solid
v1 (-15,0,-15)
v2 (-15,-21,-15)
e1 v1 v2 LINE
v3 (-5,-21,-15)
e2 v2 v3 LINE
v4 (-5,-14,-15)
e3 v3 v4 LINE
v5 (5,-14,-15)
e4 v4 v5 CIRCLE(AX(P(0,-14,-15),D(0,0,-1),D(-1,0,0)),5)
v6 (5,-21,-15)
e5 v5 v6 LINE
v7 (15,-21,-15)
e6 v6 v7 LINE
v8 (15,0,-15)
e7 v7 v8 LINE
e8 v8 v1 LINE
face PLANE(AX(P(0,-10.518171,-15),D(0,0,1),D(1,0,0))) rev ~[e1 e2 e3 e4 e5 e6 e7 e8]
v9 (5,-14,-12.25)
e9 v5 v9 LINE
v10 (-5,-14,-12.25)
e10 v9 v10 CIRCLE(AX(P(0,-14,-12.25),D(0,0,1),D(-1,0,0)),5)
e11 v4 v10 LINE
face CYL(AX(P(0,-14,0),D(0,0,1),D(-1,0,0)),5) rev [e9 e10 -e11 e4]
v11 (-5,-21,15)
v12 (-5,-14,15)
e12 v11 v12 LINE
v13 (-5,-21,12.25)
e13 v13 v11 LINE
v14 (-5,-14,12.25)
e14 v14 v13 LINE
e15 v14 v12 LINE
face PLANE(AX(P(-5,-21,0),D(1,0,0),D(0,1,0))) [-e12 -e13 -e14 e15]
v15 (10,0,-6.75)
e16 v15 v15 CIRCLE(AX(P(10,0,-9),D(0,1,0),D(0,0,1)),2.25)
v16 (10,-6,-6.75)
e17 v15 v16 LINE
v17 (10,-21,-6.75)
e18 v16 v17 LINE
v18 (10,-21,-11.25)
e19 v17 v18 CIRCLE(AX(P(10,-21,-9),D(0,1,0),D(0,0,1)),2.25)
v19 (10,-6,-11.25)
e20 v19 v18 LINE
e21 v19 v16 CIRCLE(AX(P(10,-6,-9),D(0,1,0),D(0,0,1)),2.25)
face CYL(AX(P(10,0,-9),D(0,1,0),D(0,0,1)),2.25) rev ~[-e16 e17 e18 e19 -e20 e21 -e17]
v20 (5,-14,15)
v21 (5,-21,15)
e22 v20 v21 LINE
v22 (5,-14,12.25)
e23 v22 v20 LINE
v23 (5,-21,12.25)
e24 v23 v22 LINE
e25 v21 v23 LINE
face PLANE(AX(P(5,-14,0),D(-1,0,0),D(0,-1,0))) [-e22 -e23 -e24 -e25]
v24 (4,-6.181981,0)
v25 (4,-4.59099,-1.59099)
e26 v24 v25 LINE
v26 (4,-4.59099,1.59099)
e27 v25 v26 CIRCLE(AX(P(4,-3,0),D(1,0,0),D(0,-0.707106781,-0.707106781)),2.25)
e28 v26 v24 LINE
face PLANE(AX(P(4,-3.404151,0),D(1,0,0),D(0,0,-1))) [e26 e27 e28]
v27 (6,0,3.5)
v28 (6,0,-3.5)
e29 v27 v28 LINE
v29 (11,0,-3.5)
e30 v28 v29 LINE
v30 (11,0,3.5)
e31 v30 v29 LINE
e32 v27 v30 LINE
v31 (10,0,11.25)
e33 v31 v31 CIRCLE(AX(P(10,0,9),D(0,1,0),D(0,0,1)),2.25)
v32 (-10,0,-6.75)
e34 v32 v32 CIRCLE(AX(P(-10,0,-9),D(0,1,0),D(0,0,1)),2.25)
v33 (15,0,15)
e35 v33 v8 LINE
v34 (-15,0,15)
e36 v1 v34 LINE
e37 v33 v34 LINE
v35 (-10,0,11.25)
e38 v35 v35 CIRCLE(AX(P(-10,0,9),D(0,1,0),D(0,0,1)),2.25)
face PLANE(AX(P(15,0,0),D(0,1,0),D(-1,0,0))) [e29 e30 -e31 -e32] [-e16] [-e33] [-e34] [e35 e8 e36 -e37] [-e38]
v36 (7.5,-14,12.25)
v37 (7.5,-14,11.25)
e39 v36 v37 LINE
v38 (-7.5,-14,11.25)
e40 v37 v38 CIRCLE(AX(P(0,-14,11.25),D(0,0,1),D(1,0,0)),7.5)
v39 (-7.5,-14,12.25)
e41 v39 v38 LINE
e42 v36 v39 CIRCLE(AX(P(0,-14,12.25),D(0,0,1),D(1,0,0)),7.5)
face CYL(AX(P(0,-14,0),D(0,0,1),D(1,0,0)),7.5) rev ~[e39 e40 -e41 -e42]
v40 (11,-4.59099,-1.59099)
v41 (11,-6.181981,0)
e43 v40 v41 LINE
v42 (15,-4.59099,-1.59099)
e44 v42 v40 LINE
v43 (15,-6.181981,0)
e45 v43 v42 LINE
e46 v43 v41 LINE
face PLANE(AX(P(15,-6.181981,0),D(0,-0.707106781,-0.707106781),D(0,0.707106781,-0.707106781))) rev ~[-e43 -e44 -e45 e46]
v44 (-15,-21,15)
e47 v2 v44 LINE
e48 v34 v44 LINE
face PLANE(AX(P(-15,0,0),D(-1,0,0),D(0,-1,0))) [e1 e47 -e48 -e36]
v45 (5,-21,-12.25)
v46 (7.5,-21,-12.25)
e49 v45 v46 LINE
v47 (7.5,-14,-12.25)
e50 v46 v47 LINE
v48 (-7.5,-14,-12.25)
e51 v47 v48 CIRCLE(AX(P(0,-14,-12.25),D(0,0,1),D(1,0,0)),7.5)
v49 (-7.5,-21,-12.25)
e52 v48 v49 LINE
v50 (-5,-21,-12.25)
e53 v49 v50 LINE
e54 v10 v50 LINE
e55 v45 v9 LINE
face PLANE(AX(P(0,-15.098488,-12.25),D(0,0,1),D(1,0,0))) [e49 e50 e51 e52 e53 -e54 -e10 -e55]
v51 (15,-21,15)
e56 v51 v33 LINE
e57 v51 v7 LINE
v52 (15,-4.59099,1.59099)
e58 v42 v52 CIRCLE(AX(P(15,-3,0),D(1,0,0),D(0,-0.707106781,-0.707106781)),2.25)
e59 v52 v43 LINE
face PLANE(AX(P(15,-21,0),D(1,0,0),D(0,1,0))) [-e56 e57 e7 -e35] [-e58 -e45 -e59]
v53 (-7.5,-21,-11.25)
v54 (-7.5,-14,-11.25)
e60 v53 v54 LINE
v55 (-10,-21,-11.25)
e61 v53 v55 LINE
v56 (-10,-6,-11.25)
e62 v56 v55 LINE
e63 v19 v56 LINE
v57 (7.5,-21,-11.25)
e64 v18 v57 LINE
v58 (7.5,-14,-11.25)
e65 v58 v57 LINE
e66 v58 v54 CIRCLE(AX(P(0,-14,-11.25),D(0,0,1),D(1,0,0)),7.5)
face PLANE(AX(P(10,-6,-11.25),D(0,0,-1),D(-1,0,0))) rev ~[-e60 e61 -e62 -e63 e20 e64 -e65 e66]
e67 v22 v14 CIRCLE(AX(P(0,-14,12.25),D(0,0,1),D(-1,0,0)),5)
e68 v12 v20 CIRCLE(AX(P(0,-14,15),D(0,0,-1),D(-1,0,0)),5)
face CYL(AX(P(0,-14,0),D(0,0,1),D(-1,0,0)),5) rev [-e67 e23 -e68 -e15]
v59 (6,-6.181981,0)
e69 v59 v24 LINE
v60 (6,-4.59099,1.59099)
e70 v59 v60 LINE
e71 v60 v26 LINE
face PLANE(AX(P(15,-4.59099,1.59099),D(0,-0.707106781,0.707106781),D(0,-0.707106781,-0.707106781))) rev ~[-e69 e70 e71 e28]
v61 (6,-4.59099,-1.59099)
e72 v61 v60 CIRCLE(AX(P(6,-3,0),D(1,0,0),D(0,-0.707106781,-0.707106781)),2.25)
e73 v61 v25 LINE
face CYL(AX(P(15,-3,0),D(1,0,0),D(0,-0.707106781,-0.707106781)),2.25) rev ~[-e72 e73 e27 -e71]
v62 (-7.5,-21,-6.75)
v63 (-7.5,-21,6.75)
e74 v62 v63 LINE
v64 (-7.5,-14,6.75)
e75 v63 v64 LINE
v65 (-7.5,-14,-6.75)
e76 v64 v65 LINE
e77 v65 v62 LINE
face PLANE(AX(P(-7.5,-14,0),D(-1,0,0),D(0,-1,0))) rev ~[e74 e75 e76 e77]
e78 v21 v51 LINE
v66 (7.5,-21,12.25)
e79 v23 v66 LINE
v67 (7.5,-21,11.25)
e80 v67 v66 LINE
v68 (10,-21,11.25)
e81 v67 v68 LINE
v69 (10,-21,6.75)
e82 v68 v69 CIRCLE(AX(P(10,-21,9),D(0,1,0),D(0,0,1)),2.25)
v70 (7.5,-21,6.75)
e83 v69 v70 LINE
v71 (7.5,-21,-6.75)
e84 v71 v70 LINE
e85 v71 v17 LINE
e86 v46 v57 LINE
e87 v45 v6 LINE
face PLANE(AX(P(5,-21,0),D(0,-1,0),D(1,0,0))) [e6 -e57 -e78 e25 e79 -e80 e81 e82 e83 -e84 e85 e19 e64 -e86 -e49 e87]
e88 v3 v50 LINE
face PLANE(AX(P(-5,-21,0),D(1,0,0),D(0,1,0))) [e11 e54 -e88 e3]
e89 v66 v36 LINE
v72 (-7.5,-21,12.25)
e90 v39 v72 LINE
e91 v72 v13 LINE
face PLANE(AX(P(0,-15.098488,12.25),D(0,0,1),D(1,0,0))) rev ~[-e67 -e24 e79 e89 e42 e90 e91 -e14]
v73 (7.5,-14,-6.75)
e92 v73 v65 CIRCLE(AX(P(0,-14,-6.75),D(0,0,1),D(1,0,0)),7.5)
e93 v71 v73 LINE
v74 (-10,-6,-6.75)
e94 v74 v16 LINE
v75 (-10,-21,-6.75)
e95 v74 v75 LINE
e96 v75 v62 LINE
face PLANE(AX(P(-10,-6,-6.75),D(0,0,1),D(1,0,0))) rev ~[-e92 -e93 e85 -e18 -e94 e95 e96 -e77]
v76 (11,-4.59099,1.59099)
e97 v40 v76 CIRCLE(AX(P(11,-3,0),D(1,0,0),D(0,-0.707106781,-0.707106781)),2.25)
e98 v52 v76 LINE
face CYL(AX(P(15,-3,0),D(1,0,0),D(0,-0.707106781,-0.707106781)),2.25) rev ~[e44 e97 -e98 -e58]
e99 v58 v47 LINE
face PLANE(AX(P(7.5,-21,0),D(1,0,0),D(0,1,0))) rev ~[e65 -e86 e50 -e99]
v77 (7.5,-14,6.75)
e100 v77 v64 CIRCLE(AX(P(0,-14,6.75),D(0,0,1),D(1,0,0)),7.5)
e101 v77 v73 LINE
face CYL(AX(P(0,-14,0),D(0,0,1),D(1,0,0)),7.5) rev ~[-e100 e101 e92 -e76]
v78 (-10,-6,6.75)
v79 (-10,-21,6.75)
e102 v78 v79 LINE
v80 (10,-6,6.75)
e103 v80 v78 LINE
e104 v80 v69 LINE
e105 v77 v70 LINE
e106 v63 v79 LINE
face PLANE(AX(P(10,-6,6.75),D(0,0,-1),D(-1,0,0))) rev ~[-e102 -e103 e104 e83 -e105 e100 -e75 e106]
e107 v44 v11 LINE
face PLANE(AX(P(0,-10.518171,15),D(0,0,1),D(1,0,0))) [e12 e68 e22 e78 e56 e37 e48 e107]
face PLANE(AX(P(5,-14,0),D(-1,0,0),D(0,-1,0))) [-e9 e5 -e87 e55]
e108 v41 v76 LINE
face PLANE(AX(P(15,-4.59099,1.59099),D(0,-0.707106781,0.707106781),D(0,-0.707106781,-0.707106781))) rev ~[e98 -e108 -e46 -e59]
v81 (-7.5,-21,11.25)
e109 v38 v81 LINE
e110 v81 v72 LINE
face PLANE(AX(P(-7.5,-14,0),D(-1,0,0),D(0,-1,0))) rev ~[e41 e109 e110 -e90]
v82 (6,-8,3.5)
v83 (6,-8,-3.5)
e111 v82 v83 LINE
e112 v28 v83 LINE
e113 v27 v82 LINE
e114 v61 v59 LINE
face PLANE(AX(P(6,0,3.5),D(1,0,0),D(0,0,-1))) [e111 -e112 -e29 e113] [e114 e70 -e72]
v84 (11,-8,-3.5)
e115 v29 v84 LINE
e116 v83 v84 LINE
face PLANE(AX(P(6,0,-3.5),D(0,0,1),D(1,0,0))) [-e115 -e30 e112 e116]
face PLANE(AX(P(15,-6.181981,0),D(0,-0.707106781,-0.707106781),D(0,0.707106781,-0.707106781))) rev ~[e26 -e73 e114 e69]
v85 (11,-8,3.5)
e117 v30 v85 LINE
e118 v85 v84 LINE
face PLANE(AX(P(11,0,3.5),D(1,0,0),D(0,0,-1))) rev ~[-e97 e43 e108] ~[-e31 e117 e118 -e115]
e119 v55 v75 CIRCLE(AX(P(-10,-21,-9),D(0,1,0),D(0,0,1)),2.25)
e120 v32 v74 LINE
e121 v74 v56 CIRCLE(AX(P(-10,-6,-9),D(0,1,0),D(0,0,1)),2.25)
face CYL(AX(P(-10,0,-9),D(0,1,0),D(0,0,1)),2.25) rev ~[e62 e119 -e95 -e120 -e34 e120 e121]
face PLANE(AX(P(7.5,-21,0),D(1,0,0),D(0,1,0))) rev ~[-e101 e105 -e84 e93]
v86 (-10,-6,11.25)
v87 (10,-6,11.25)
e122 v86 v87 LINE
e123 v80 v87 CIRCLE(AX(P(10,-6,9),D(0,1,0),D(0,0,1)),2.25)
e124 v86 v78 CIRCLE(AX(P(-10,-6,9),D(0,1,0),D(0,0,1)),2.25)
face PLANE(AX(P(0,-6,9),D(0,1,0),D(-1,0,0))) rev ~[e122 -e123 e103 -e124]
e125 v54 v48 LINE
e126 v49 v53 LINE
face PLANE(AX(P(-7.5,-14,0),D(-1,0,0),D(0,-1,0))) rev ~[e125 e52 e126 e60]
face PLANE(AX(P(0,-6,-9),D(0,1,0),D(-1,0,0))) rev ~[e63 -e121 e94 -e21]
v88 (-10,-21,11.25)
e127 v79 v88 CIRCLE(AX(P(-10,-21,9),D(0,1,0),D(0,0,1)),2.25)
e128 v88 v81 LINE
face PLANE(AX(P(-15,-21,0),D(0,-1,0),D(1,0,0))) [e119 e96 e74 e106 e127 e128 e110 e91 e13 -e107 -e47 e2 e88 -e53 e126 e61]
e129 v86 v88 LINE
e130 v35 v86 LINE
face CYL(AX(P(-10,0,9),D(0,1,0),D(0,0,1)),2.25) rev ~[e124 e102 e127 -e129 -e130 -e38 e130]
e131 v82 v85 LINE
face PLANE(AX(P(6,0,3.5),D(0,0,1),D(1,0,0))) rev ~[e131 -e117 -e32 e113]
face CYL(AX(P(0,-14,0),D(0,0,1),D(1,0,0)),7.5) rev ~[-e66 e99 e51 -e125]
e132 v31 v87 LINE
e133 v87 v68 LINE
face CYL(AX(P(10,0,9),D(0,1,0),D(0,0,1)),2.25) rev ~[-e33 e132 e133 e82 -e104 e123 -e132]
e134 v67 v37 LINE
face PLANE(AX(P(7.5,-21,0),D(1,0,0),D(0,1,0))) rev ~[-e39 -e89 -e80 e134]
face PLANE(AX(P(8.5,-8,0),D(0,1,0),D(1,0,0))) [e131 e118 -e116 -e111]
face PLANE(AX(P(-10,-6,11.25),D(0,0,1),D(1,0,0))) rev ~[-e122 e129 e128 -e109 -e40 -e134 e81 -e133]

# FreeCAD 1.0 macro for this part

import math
import FreeCAD as App
import Part
import Sketcher

V = App.Vector
Q = App.Units.Quantity


def add_polygon(sketch, points):
    """Adds a closed chain of lines whose ends are joined by coincident constraints."""
    first, n = sketch.GeometryCount, len(points)
    for a, b in zip(points, points[1:] + points[:1]):
        sketch.addGeometry(Part.LineSegment(App.Vector(*a, 0), App.Vector(*b, 0)), False)
    for i in range(n):
        sketch.addConstraint(Sketcher.Constraint("Coincident", first + i, 2, first + (i + 1) % n, 1))

doc = App.newDocument("Part")
body = doc.addObject("PartDesign::Body", "Body")

sketch1 = doc.addObject("Sketcher::SketchObject", "Sketch")
body.addObject(sketch1)
sketch1.AttachmentSupport = (doc.XY_Plane, [""])
sketch1.MapMode = "FlatFace"
sketch1.addGeometry([
    Part.LineSegment(V(15, 0, 0), V(-15, 0, 0)),
    Part.LineSegment(V(-15, 0, 0), V(-15, -21, 0)),
    Part.LineSegment(V(-15, -21, 0), V(-5, -21, 0)),
    Part.LineSegment(V(-5, -21, 0), V(-5, -14, 0)),
    Part.ArcOfCircle(Part.Circle(V(0, -14, 0), V(0, 0, 1), 5), math.radians(0), math.radians(180)),
    Part.LineSegment(V(5, -14, 0), V(5, -21, 0)),
    Part.LineSegment(V(5, -21, 0), V(15, -21, 0)),
    Part.LineSegment(V(15, -21, 0), V(15, 0, 0)),
], False)
sketch1.addConstraint([
    Sketcher.Constraint("Coincident", 0, 2, 1, 1),
    Sketcher.Constraint("Coincident", 1, 2, 2, 1),
    Sketcher.Constraint("Coincident", 2, 2, 3, 1),
    Sketcher.Constraint("Tangent", 3, 2, 4, 2),
    Sketcher.Constraint("Tangent", 4, 1, 5, 1),
    Sketcher.Constraint("Coincident", 5, 2, 6, 1),
    Sketcher.Constraint("Coincident", 6, 2, 7, 1),
    Sketcher.Constraint("Coincident", 7, 2, 0, 1),
    Sketcher.Constraint("Horizontal", 0),
    Sketcher.Constraint("Vertical", 1),
    Sketcher.Constraint("Horizontal", 2),
    Sketcher.Constraint("Vertical", 3),
    Sketcher.Constraint("Vertical", 5),
    Sketcher.Constraint("Horizontal", 6),
    Sketcher.Constraint("Vertical", 7),
    Sketcher.Constraint("Symmetric", 0, 2, 7, 2, -1, 1),
    Sketcher.Constraint("Symmetric", 2, 2, 5, 2, -2),
    Sketcher.Constraint("Radius", 4, Q("5 mm")),
    Sketcher.Constraint("DistanceX", 0, 2, 0, 1, Q("30 mm")),
    Sketcher.Constraint("DistanceY", 1, 2, 1, 1, Q("21 mm")),
    Sketcher.Constraint("DistanceY", 3, 1, 3, 2, Q("7 mm")),
])
pad1 = doc.addObject("PartDesign::Pad", "Pad")
body.addObject(pad1)
pad1.Profile = sketch1
pad1.Length = 30
pad1.Midplane = True

sketch2 = doc.addObject("Sketcher::SketchObject", "Sketch001")
body.addObject(sketch2)
sketch2.AttachmentSupport = (doc.XZ_Plane, [""])
sketch2.MapMode = "FlatFace"
sketch2.addGeometry([
    Part.Circle(V(-10, -9, 0), V(0, 0, 1), 2.2),
    Part.Circle(V(10, -9, 0), V(0, 0, 1), 2.2),
    Part.Circle(V(10, 9, 0), V(0, 0, 1), 2.2),
    Part.Circle(V(-10, 9, 0), V(0, 0, 1), 2.2),
], False)
sketch2.addConstraint([
    Sketcher.Constraint("Equal", 0, 1),
    Sketcher.Constraint("Equal", 1, 2),
    Sketcher.Constraint("Equal", 2, 3),
    Sketcher.Constraint("Symmetric", 0, 3, 2, 3, -1, 1),
    Sketcher.Constraint("Symmetric", 1, 3, 3, 3, -1, 1),
    Sketcher.Constraint("Symmetric", 0, 3, 1, 3, -2),
    Sketcher.Constraint("Diameter", 0, Q("4.5 mm")),
    Sketcher.Constraint("DistanceX", 0, 3, -1, 1, Q("10 mm")),
    Sketcher.Constraint("DistanceY", 0, 3, -1, 1, Q("9 mm")),
])
pocket1 = doc.addObject("PartDesign::Pocket", "Pocket")
body.addObject(pocket1)
pocket1.Profile = sketch2
pocket1.Type = "ThroughAll"
pocket1.Reversed = True

sketch3 = doc.addObject("Sketcher::SketchObject", "Sketch002")
body.addObject(sketch3)
sketch3.AttachmentSupport = (doc.XZ_Plane, [""])
sketch3.MapMode = "FlatFace"
sketch3.AttachmentOffset = App.Placement(V(0, 0, 6), App.Rotation())
sketch3.addGeometry([
    Part.LineSegment(V(10, 11.2, 0), V(-10, 11.2, 0)),
    Part.ArcOfCircle(Part.Circle(V(-10, 9, 0), V(0, 0, 1), 2.2), math.radians(90), math.radians(270)),
    Part.LineSegment(V(-10, 6.8, 0), V(10, 6.8, 0)),
    Part.ArcOfCircle(Part.Circle(V(10, 9, 0), V(0, 0, 1), 2.2), math.radians(-90), math.radians(90)),
    Part.LineSegment(V(-10, -11.2, 0), V(10, -11.2, 0)),
    Part.ArcOfCircle(Part.Circle(V(10, -9, 0), V(0, 0, 1), 2.2), math.radians(-90), math.radians(90)),
    Part.LineSegment(V(10, -6.8, 0), V(-10, -6.8, 0)),
    Part.ArcOfCircle(Part.Circle(V(-10, -9, 0), V(0, 0, 1), 2.2), math.radians(90), math.radians(270)),
], False)
sketch3.addConstraint([
    Sketcher.Constraint("Tangent", 0, 2, 1, 1),
    Sketcher.Constraint("Tangent", 1, 2, 2, 1),
    Sketcher.Constraint("Tangent", 2, 2, 3, 1),
    Sketcher.Constraint("Tangent", 3, 2, 0, 1),
    Sketcher.Constraint("Tangent", 4, 2, 5, 1),
    Sketcher.Constraint("Tangent", 5, 2, 6, 1),
    Sketcher.Constraint("Tangent", 6, 2, 7, 1),
    Sketcher.Constraint("Tangent", 7, 2, 4, 1),
    Sketcher.Constraint("Horizontal", 0),
    Sketcher.Constraint("Horizontal", 2),
    Sketcher.Constraint("Horizontal", 4),
    Sketcher.Constraint("Horizontal", 6),
    Sketcher.Constraint("Equal", 3, 5),
    Sketcher.Constraint("Symmetric", 1, 3, 5, 3, -1, 1),
    Sketcher.Constraint("Vertical", 3, 3, 5, 3),
    Sketcher.Constraint("Vertical", 1, 3, 7, 3),
    Sketcher.Constraint("DistanceX", 0, 2, 0, 1, Q("20 mm")),
    Sketcher.Constraint("Radius", 1, Q("2.25 mm")),
    Sketcher.Constraint("DistanceY", -1, 1, 1, 3, Q("9 mm")),
])
pocket2 = doc.addObject("PartDesign::Pocket", "Pocket001")
body.addObject(pocket2)
pocket2.Profile = sketch3
pocket2.Length = 15
pocket2.Reversed = True

sketch4 = doc.addObject("Sketcher::SketchObject", "Sketch003")
body.addObject(sketch4)
sketch4.AttachmentSupport = (doc.XY_Plane, [""])
sketch4.MapMode = "FlatFace"
sketch4.addGeometry([
    Part.LineSegment(V(-8, -14, 0), V(-8, -21, 0)),
    Part.LineSegment(V(-8, -21, 0), V(8, -21, 0)),
    Part.LineSegment(V(8, -21, 0), V(8, -14, 0)),
    Part.ArcOfCircle(Part.Circle(V(0, -14, 0), V(0, 0, 1), 8), math.radians(0), math.radians(180)),
], False)
sketch4.addConstraint([
    Sketcher.Constraint("Coincident", 0, 2, 1, 1),
    Sketcher.Constraint("Coincident", 1, 2, 2, 1),
    Sketcher.Constraint("Tangent", 2, 2, 3, 1),
    Sketcher.Constraint("Tangent", 3, 2, 0, 1),
    Sketcher.Constraint("Vertical", 0),
    Sketcher.Constraint("Horizontal", 1),
    Sketcher.Constraint("Vertical", 2),
    Sketcher.Constraint("PointOnObject", 3, 3, -2),
    Sketcher.Constraint("Radius", 3, Q("7.5 mm")),
    Sketcher.Constraint("DistanceY", 0, 2, 0, 1, Q("7 mm")),
    Sketcher.Constraint("DistanceY", 3, 3, -1, 1, Q("14 mm")),
])
pocket3 = doc.addObject("PartDesign::Pocket", "Pocket002")
body.addObject(pocket3)
pocket3.Profile = sketch4
pocket3.Length = 24.5
pocket3.Midplane = True

sketch5 = doc.addObject("Sketcher::SketchObject", "Sketch004")
body.addObject(sketch5)
sketch5.AttachmentSupport = (doc.YZ_Plane, [""])
sketch5.MapMode = "FlatFace"
sketch5.AttachmentOffset = App.Placement(V(0, 0, 15), App.Rotation())
sketch5.addGeometry([
    Part.LineSegment(V(-4.6, 1.6, 0), V(-6.2, 0, 0)),
    Part.LineSegment(V(-6.2, 0, 0), V(-4.6, -1.6, 0)),
    Part.ArcOfCircle(Part.Circle(V(-3, 0, 0), V(0, 0, 1), 2.2), math.radians(-135), math.radians(135)),
], False)
sketch5.addConstraint([
    Sketcher.Constraint("Coincident", 0, 2, 1, 1),
    Sketcher.Constraint("Tangent", 1, 2, 2, 1),
    Sketcher.Constraint("Tangent", 2, 2, 0, 1),
    Sketcher.Constraint("Symmetric", 1, 2, 2, 2, -1),
    Sketcher.Constraint("Perpendicular", 0, 1),
    Sketcher.Constraint("Radius", 2, Q("2.25 mm")),
    Sketcher.Constraint("DistanceX", 2, 3, -1, 1, Q("3 mm")),
])
pocket4 = doc.addObject("PartDesign::Pocket", "Pocket003")
body.addObject(pocket4)
pocket4.Profile = sketch5
pocket4.Length = 11

sketch6 = doc.addObject("Sketcher::SketchObject", "Sketch005")
body.addObject(sketch6)
sketch6.AttachmentSupport = (doc.XZ_Plane, [""])
sketch6.MapMode = "FlatFace"
add_polygon(sketch6, [(6, -4), (6, 4), (11, 4), (11, -4)])
sketch6.addConstraint([
    Sketcher.Constraint("Vertical", 0),
    Sketcher.Constraint("Horizontal", 1),
    Sketcher.Constraint("Vertical", 2),
    Sketcher.Constraint("Horizontal", 3),
    Sketcher.Constraint("DistanceX", 1, 1, 1, 2, Q("5 mm")),
    Sketcher.Constraint("DistanceY", 0, 1, 0, 2, Q("7 mm")),
    Sketcher.Constraint("DistanceX", -1, 1, 0, 2, Q("6 mm")),
    Sketcher.Constraint("DistanceY", -1, 1, 0, 2, Q("3.5 mm")),
])
pocket5 = doc.addObject("PartDesign::Pocket", "Pocket004")
body.addObject(pocket5)
pocket5.Profile = sketch6
pocket5.Length = 8
pocket5.Reversed = True

doc.recompute()
